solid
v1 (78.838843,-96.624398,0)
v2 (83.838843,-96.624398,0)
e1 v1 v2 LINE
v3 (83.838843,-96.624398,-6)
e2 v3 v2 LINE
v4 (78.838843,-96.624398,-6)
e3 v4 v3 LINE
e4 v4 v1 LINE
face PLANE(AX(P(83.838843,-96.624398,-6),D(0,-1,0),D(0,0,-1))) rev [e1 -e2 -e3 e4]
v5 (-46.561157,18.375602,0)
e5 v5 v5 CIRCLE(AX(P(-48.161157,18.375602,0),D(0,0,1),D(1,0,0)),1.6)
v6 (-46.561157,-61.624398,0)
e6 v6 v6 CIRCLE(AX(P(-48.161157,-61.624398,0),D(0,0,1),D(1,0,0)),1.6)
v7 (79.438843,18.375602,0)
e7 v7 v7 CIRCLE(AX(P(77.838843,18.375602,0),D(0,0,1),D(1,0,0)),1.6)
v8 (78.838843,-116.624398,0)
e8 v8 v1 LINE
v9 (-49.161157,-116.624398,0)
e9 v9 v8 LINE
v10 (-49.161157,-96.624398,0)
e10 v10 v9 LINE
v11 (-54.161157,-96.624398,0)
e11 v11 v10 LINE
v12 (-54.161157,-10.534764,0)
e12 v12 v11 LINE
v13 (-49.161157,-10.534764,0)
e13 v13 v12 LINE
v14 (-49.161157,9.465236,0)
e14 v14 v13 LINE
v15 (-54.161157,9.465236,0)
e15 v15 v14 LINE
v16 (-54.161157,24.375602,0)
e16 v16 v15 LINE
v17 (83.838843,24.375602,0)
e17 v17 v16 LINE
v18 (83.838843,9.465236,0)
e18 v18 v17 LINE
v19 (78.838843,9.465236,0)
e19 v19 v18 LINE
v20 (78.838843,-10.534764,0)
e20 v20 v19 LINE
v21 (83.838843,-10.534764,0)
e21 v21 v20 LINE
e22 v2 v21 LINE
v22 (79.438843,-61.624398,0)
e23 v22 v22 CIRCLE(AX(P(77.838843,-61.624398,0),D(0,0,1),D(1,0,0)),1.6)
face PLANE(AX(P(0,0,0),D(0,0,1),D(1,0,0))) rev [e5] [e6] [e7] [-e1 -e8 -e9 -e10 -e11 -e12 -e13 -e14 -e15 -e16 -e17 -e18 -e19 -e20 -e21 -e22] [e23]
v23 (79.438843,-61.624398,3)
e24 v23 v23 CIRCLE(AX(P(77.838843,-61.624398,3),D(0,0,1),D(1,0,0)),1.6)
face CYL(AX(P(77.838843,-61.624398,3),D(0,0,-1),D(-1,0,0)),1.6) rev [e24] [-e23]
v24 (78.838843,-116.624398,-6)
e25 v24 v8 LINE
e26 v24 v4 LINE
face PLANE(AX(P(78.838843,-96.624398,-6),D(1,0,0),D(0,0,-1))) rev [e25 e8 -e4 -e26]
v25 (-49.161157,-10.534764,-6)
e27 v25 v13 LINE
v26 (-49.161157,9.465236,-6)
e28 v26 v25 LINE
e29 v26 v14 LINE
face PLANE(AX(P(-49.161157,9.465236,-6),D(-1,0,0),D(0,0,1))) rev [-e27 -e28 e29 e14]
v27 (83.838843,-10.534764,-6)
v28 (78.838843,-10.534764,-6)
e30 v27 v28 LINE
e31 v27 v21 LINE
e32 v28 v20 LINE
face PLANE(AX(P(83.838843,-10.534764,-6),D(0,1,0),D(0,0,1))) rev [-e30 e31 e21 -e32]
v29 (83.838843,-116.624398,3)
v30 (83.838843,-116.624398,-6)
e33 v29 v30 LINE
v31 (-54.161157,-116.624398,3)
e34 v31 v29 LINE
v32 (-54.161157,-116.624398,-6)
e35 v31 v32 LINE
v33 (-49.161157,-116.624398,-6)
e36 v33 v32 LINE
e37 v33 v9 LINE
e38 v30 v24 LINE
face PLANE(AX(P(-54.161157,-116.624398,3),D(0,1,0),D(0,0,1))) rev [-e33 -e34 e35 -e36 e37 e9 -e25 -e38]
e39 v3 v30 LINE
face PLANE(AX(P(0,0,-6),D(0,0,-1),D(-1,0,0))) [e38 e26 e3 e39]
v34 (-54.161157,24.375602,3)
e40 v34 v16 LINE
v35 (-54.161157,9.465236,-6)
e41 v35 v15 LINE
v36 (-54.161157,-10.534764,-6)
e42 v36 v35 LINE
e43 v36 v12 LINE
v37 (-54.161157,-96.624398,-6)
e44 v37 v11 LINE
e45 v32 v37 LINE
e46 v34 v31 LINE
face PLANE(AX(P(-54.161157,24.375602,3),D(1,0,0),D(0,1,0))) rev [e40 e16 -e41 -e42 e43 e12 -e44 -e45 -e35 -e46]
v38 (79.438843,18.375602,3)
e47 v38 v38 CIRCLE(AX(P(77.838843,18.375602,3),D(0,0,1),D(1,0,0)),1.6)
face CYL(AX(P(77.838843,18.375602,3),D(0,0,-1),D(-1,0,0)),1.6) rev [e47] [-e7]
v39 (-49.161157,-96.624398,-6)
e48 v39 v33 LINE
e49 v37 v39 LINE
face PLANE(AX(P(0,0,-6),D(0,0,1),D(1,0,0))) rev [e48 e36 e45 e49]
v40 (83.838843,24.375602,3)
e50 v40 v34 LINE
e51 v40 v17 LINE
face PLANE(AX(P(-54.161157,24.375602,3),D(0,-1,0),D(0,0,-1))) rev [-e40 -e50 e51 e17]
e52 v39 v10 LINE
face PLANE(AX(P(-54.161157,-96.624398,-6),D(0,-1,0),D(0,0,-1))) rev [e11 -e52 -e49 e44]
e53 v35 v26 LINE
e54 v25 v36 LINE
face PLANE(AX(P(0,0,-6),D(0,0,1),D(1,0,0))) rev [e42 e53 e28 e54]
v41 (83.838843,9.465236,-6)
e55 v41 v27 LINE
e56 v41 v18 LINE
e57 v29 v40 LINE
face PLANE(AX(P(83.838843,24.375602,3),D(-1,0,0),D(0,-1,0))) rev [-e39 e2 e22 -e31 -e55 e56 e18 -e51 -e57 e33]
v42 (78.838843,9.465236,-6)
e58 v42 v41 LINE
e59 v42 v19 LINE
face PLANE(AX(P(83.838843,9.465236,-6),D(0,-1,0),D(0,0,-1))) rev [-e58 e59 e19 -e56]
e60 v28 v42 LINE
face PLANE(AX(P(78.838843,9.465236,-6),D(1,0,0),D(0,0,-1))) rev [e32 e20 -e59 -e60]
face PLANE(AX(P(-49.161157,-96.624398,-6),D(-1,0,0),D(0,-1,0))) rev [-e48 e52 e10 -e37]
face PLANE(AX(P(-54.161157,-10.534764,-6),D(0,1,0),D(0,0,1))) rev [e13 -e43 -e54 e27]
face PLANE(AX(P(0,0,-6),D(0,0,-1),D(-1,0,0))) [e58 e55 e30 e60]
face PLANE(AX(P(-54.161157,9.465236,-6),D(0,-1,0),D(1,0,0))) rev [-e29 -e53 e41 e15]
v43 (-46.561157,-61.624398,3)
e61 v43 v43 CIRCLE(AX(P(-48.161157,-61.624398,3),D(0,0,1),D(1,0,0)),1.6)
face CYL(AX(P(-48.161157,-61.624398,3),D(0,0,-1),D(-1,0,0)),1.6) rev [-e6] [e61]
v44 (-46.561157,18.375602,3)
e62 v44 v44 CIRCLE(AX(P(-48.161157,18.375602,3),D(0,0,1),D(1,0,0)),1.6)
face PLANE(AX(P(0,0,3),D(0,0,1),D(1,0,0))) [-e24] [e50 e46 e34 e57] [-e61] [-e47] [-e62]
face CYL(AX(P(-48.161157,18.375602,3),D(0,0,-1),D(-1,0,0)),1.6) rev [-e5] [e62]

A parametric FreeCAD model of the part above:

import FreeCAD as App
import Part
import Sketcher
from FreeCAD import Vector
Q = App.Units.Quantity

doc = App.newDocument("Part")
body = doc.addObject("PartDesign::Body", "Body")

sketch1 = doc.addObject("Sketcher::SketchObject", "Sketch")
body.addObject(sketch1)
sketch1.AttachmentSupport = (doc.XY_Plane, [""])
sketch1.MapMode = "FlatFace"
sketch1.addGeometry(Part.LineSegment(Vector(-54.161157, 24.375602, 0), Vector(-54.161157, -116.624398, 0)), False)
sketch1.addGeometry(Part.LineSegment(Vector(-54.161157, -116.624398, 0), Vector(83.838843, -116.624398, 0)), False)
sketch1.addGeometry(Part.LineSegment(Vector(83.838843, -116.624398, 0), Vector(83.838843, 24.375602, 0)), False)
sketch1.addGeometry(Part.LineSegment(Vector(83.838843, 24.375602, 0), Vector(-54.161157, 24.375602, 0)), False)
sketch1.addGeometry(Part.Circle(Vector(-48.161157, -61.624398, 0), Vector(0, 0, 1), 1.6), False)
sketch1.addGeometry(Part.Circle(Vector(77.838843, -61.624398, 0), Vector(0, 0, 1), 1.6), False)
sketch1.addGeometry(Part.Circle(Vector(-48.161157, 18.375602, 0), Vector(0, 0, 1), 1.6), False)
sketch1.addGeometry(Part.Circle(Vector(77.838843, 18.375602, 0), Vector(0, 0, 1), 1.6), False)
sketch1.addConstraint(Sketcher.Constraint("Coincident", 0, 2, 1, 1))
sketch1.addConstraint(Sketcher.Constraint("Coincident", 1, 2, 2, 1))
sketch1.addConstraint(Sketcher.Constraint("Coincident", 2, 2, 3, 1))
sketch1.addConstraint(Sketcher.Constraint("Coincident", 3, 2, 0, 1))
sketch1.addConstraint(Sketcher.Constraint("Vertical", 0))
sketch1.addConstraint(Sketcher.Constraint("Horizontal", 1))
sketch1.addConstraint(Sketcher.Constraint("Vertical", 2))
sketch1.addConstraint(Sketcher.Constraint("Horizontal", 3))
sketch1.addConstraint(Sketcher.Constraint("Equal", 4, 5))
sketch1.addConstraint(Sketcher.Constraint("Equal", 5, 6))
sketch1.addConstraint(Sketcher.Constraint("Equal", 6, 7))
sketch1.addConstraint(Sketcher.Constraint("Horizontal", 4, 3, 5, 3))
sketch1.addConstraint(Sketcher.Constraint("Horizontal", 6, 3, 7, 3))
sketch1.addConstraint(Sketcher.Constraint("Vertical", 4, 3, 6, 3))
sketch1.addConstraint(Sketcher.Constraint("Vertical", 5, 3, 7, 3))
sketch1.addConstraint(Sketcher.Constraint("Diameter", 4, Q("3.2 mm")))
sketch1.addConstraint(Sketcher.Constraint("DistanceX", 1, 1, 1, 2, Q("138 mm")))
sketch1.addConstraint(Sketcher.Constraint("DistanceY", 0, 2, 0, 1, Q("141 mm")))
sketch1.addConstraint(Sketcher.Constraint("DistanceX", 4, 3, 5, 3, Q("126 mm")))
sketch1.addConstraint(Sketcher.Constraint("DistanceY", 4, 3, 6, 3, Q("80 mm")))
sketch1.addConstraint(Sketcher.Constraint("DistanceX", 0, 2, 4, 3, Q("6 mm")))
sketch1.addConstraint(Sketcher.Constraint("DistanceY", 0, 2, 4, 3, Q("55 mm")))
sketch1.addConstraint(Sketcher.Constraint("DistanceX", 4, 3, -1, 1, Q("48.161157 mm")))
sketch1.addConstraint(Sketcher.Constraint("DistanceY", 4, 3, -1, 1, Q("61.624398 mm")))
pad1 = doc.addObject("PartDesign::Pad", "Pad")
body.addObject(pad1)
pad1.Profile = sketch1
pad1.Length = 3

sketch2 = doc.addObject("Sketcher::SketchObject", "Sketch001")
body.addObject(sketch2)
sketch2.AttachmentSupport = (doc.XY_Plane, [""])
sketch2.MapMode = "FlatFace"
sketch2.addGeometry(Part.LineSegment(Vector(83.838843, -96.624398, 0), Vector(83.838843, -116.624398, 0)), False)
sketch2.addGeometry(Part.LineSegment(Vector(83.838843, -116.624398, 0), Vector(78.838843, -116.624398, 0)), False)
sketch2.addGeometry(Part.LineSegment(Vector(78.838843, -116.624398, 0), Vector(78.838843, -96.624398, 0)), False)
sketch2.addGeometry(Part.LineSegment(Vector(78.838843, -96.624398, 0), Vector(83.838843, -96.624398, 0)), False)
sketch2.addGeometry(Part.LineSegment(Vector(83.838843, 9.465236, 0), Vector(83.838843, -10.534764, 0)), False)
sketch2.addGeometry(Part.LineSegment(Vector(83.838843, -10.534764, 0), Vector(78.838843, -10.534764, 0)), False)
sketch2.addGeometry(Part.LineSegment(Vector(78.838843, -10.534764, 0), Vector(78.838843, 9.465236, 0)), False)
sketch2.addGeometry(Part.LineSegment(Vector(78.838843, 9.465236, 0), Vector(83.838843, 9.465236, 0)), False)
sketch2.addGeometry(Part.LineSegment(Vector(-49.161157, -96.624398, 0), Vector(-49.161157, -116.624398, 0)), False)
sketch2.addGeometry(Part.LineSegment(Vector(-49.161157, -116.624398, 0), Vector(-54.161157, -116.624398, 0)), False)
sketch2.addGeometry(Part.LineSegment(Vector(-54.161157, -116.624398, 0), Vector(-54.161157, -96.624398, 0)), False)
sketch2.addGeometry(Part.LineSegment(Vector(-54.161157, -96.624398, 0), Vector(-49.161157, -96.624398, 0)), False)
sketch2.addGeometry(Part.LineSegment(Vector(-49.161157, 9.465236, 0), Vector(-49.161157, -10.534764, 0)), False)
sketch2.addGeometry(Part.LineSegment(Vector(-49.161157, -10.534764, 0), Vector(-54.161157, -10.534764, 0)), False)
sketch2.addGeometry(Part.LineSegment(Vector(-54.161157, -10.534764, 0), Vector(-54.161157, 9.465236, 0)), False)
sketch2.addGeometry(Part.LineSegment(Vector(-54.161157, 9.465236, 0), Vector(-49.161157, 9.465236, 0)), False)
sketch2.addConstraint(Sketcher.Constraint("Coincident", 0, 2, 1, 1))
sketch2.addConstraint(Sketcher.Constraint("Coincident", 1, 2, 2, 1))
sketch2.addConstraint(Sketcher.Constraint("Coincident", 2, 2, 3, 1))
sketch2.addConstraint(Sketcher.Constraint("Coincident", 3, 2, 0, 1))
sketch2.addConstraint(Sketcher.Constraint("Coincident", 4, 2, 5, 1))
sketch2.addConstraint(Sketcher.Constraint("Coincident", 5, 2, 6, 1))
sketch2.addConstraint(Sketcher.Constraint("Coincident", 6, 2, 7, 1))
sketch2.addConstraint(Sketcher.Constraint("Coincident", 7, 2, 4, 1))
sketch2.addConstraint(Sketcher.Constraint("Coincident", 8, 2, 9, 1))
sketch2.addConstraint(Sketcher.Constraint("Coincident", 9, 2, 10, 1))
sketch2.addConstraint(Sketcher.Constraint("Coincident", 10, 2, 11, 1))
sketch2.addConstraint(Sketcher.Constraint("Coincident", 11, 2, 8, 1))
sketch2.addConstraint(Sketcher.Constraint("Coincident", 12, 2, 13, 1))
sketch2.addConstraint(Sketcher.Constraint("Coincident", 13, 2, 14, 1))
sketch2.addConstraint(Sketcher.Constraint("Coincident", 14, 2, 15, 1))
sketch2.addConstraint(Sketcher.Constraint("Coincident", 15, 2, 12, 1))
sketch2.addConstraint(Sketcher.Constraint("Vertical", 0))
sketch2.addConstraint(Sketcher.Constraint("Horizontal", 1))
sketch2.addConstraint(Sketcher.Constraint("Vertical", 2))
sketch2.addConstraint(Sketcher.Constraint("Horizontal", 3))
sketch2.addConstraint(Sketcher.Constraint("Vertical", 4))
sketch2.addConstraint(Sketcher.Constraint("Horizontal", 5))
sketch2.addConstraint(Sketcher.Constraint("Vertical", 6))
sketch2.addConstraint(Sketcher.Constraint("Horizontal", 7))
sketch2.addConstraint(Sketcher.Constraint("Vertical", 8))
sketch2.addConstraint(Sketcher.Constraint("Horizontal", 9))
sketch2.addConstraint(Sketcher.Constraint("Vertical", 10))
sketch2.addConstraint(Sketcher.Constraint("Horizontal", 11))
sketch2.addConstraint(Sketcher.Constraint("Vertical", 12))
sketch2.addConstraint(Sketcher.Constraint("Horizontal", 13))
sketch2.addConstraint(Sketcher.Constraint("Vertical", 14))
sketch2.addConstraint(Sketcher.Constraint("Horizontal", 15))
sketch2.addConstraint(Sketcher.Constraint("Horizontal", 1, 2, 8, 2))
sketch2.addConstraint(Sketcher.Constraint("Horizontal", 3, 2, 10, 2))
sketch2.addConstraint(Sketcher.Constraint("Horizontal", 5, 2, 12, 2))
sketch2.addConstraint(Sketcher.Constraint("Horizontal", 7, 2, 14, 2))
sketch2.addConstraint(Sketcher.Constraint("Vertical", 3, 2, 4, 2))
sketch2.addConstraint(Sketcher.Constraint("Vertical", 2, 2, 5, 2))
sketch2.addConstraint(Sketcher.Constraint("Vertical", 11, 2, 12, 2))
sketch2.addConstraint(Sketcher.Constraint("Vertical", 10, 2, 13, 2))
sketch2.addConstraint(Sketcher.Constraint("Equal", 7, 9))
sketch2.addConstraint(Sketcher.Constraint("Equal", 2, 4))
sketch2.addConstraint(Sketcher.Constraint("DistanceX", 1, 2, 1, 1, Q("5 mm")))
sketch2.addConstraint(Sketcher.Constraint("DistanceY", 0, 2, 0, 1, Q("20 mm")))
sketch2.addConstraint(Sketcher.Constraint("DistanceX", 8, 2, 1, 2, Q("128 mm")))
sketch2.addConstraint(Sketcher.Constraint("DistanceX", -1, 1, 0, 2, Q("83.838843 mm")))
sketch2.addConstraint(Sketcher.Constraint("DistanceY", 0, 2, -1, 1, Q("116.624398 mm")))
sketch2.addConstraint(Sketcher.Constraint("DistanceY", 4, 2, -1, 1, Q("10.534764 mm")))
pad2 = doc.addObject("PartDesign::Pad", "Pad001")
body.addObject(pad2)
pad2.Profile = sketch2
pad2.Length = 6
pad2.Reversed = True

doc.recompute()
